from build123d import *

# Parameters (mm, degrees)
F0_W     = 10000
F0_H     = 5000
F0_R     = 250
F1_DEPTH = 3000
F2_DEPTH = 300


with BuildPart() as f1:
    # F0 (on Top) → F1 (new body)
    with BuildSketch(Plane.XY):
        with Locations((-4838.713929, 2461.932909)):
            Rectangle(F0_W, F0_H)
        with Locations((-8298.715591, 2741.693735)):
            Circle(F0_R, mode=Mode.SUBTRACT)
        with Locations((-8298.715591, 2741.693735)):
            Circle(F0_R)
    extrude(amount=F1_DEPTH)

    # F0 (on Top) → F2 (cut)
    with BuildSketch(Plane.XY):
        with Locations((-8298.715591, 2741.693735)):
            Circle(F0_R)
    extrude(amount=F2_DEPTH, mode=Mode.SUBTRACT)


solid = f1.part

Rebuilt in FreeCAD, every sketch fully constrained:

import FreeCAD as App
import Part
import Sketcher
from FreeCAD import Vector
Q = App.Units.Quantity


def add_polygon(sketch, points):
    """Adds a closed chain of lines whose ends are joined by coincident constraints."""
    first, n = sketch.GeometryCount, len(points)
    for a, b in zip(points, points[1:] + points[:1]):
        sketch.addGeometry(Part.LineSegment(App.Vector(*a, 0), App.Vector(*b, 0)), False)
    for i in range(n):
        sketch.addConstraint(Sketcher.Constraint("Coincident", first + i, 2, first + (i + 1) % n, 1))

doc = App.newDocument("Part")
body = doc.addObject("PartDesign::Body", "Body")

# Sketch on XY plane
sketch1 = body.newObject("Sketcher::SketchObject", "Sketch")
sketch1.AttachmentSupport = (doc.getObject("XY_Plane"), [""])
sketch1.MapMode = "FlatFace"
add_polygon(sketch1, [(-9839, 4962), (-9839, -38), (161, -38), (161, 4962)])  # lines 0-3
sketch1.addConstraint(Sketcher.Constraint("Vertical", 0))
sketch1.addConstraint(Sketcher.Constraint("Horizontal", 1))
sketch1.addConstraint(Sketcher.Constraint("Vertical", 2))
sketch1.addConstraint(Sketcher.Constraint("Horizontal", 3))
sketch1.addConstraint(Sketcher.Constraint("DistanceX", 1, 1, 1, 2, Q("10000 mm")))
sketch1.addConstraint(Sketcher.Constraint("DistanceY", 0, 2, 0, 1, Q("5000 mm")))
sketch1.addConstraint(Sketcher.Constraint("DistanceX", 0, 2, -1, 1, Q("9838.713929 mm")))
sketch1.addConstraint(Sketcher.Constraint("DistanceY", 0, 2, -1, 1, Q("38.067091 mm")))
pad1 = body.newObject("PartDesign::Pad", "Pad")
pad1.Profile = sketch1
pad1.Length = 3000

# Sketch on XY plane
sketch2 = body.newObject("Sketcher::SketchObject", "Sketch001")
sketch2.AttachmentSupport = (doc.getObject("XY_Plane"), [""])
sketch2.MapMode = "FlatFace"
sketch2.addGeometry(Part.Circle(Vector(-8299, 2742, 0), Vector(0, 0, 1), 250), False)
sketch2.addConstraint(Sketcher.Constraint("Diameter", 0, Q("500 mm")))
sketch2.addConstraint(Sketcher.Constraint("DistanceX", 0, 3, -1, 1, Q("8298.715591 mm")))
sketch2.addConstraint(Sketcher.Constraint("DistanceY", -1, 1, 0, 3, Q("2741.693735 mm")))
pocket1 = body.newObject("PartDesign::Pocket", "Pocket")
pocket1.Profile = sketch2
pocket1.Length = 300
pocket1.Reversed = True

doc.recompute()
